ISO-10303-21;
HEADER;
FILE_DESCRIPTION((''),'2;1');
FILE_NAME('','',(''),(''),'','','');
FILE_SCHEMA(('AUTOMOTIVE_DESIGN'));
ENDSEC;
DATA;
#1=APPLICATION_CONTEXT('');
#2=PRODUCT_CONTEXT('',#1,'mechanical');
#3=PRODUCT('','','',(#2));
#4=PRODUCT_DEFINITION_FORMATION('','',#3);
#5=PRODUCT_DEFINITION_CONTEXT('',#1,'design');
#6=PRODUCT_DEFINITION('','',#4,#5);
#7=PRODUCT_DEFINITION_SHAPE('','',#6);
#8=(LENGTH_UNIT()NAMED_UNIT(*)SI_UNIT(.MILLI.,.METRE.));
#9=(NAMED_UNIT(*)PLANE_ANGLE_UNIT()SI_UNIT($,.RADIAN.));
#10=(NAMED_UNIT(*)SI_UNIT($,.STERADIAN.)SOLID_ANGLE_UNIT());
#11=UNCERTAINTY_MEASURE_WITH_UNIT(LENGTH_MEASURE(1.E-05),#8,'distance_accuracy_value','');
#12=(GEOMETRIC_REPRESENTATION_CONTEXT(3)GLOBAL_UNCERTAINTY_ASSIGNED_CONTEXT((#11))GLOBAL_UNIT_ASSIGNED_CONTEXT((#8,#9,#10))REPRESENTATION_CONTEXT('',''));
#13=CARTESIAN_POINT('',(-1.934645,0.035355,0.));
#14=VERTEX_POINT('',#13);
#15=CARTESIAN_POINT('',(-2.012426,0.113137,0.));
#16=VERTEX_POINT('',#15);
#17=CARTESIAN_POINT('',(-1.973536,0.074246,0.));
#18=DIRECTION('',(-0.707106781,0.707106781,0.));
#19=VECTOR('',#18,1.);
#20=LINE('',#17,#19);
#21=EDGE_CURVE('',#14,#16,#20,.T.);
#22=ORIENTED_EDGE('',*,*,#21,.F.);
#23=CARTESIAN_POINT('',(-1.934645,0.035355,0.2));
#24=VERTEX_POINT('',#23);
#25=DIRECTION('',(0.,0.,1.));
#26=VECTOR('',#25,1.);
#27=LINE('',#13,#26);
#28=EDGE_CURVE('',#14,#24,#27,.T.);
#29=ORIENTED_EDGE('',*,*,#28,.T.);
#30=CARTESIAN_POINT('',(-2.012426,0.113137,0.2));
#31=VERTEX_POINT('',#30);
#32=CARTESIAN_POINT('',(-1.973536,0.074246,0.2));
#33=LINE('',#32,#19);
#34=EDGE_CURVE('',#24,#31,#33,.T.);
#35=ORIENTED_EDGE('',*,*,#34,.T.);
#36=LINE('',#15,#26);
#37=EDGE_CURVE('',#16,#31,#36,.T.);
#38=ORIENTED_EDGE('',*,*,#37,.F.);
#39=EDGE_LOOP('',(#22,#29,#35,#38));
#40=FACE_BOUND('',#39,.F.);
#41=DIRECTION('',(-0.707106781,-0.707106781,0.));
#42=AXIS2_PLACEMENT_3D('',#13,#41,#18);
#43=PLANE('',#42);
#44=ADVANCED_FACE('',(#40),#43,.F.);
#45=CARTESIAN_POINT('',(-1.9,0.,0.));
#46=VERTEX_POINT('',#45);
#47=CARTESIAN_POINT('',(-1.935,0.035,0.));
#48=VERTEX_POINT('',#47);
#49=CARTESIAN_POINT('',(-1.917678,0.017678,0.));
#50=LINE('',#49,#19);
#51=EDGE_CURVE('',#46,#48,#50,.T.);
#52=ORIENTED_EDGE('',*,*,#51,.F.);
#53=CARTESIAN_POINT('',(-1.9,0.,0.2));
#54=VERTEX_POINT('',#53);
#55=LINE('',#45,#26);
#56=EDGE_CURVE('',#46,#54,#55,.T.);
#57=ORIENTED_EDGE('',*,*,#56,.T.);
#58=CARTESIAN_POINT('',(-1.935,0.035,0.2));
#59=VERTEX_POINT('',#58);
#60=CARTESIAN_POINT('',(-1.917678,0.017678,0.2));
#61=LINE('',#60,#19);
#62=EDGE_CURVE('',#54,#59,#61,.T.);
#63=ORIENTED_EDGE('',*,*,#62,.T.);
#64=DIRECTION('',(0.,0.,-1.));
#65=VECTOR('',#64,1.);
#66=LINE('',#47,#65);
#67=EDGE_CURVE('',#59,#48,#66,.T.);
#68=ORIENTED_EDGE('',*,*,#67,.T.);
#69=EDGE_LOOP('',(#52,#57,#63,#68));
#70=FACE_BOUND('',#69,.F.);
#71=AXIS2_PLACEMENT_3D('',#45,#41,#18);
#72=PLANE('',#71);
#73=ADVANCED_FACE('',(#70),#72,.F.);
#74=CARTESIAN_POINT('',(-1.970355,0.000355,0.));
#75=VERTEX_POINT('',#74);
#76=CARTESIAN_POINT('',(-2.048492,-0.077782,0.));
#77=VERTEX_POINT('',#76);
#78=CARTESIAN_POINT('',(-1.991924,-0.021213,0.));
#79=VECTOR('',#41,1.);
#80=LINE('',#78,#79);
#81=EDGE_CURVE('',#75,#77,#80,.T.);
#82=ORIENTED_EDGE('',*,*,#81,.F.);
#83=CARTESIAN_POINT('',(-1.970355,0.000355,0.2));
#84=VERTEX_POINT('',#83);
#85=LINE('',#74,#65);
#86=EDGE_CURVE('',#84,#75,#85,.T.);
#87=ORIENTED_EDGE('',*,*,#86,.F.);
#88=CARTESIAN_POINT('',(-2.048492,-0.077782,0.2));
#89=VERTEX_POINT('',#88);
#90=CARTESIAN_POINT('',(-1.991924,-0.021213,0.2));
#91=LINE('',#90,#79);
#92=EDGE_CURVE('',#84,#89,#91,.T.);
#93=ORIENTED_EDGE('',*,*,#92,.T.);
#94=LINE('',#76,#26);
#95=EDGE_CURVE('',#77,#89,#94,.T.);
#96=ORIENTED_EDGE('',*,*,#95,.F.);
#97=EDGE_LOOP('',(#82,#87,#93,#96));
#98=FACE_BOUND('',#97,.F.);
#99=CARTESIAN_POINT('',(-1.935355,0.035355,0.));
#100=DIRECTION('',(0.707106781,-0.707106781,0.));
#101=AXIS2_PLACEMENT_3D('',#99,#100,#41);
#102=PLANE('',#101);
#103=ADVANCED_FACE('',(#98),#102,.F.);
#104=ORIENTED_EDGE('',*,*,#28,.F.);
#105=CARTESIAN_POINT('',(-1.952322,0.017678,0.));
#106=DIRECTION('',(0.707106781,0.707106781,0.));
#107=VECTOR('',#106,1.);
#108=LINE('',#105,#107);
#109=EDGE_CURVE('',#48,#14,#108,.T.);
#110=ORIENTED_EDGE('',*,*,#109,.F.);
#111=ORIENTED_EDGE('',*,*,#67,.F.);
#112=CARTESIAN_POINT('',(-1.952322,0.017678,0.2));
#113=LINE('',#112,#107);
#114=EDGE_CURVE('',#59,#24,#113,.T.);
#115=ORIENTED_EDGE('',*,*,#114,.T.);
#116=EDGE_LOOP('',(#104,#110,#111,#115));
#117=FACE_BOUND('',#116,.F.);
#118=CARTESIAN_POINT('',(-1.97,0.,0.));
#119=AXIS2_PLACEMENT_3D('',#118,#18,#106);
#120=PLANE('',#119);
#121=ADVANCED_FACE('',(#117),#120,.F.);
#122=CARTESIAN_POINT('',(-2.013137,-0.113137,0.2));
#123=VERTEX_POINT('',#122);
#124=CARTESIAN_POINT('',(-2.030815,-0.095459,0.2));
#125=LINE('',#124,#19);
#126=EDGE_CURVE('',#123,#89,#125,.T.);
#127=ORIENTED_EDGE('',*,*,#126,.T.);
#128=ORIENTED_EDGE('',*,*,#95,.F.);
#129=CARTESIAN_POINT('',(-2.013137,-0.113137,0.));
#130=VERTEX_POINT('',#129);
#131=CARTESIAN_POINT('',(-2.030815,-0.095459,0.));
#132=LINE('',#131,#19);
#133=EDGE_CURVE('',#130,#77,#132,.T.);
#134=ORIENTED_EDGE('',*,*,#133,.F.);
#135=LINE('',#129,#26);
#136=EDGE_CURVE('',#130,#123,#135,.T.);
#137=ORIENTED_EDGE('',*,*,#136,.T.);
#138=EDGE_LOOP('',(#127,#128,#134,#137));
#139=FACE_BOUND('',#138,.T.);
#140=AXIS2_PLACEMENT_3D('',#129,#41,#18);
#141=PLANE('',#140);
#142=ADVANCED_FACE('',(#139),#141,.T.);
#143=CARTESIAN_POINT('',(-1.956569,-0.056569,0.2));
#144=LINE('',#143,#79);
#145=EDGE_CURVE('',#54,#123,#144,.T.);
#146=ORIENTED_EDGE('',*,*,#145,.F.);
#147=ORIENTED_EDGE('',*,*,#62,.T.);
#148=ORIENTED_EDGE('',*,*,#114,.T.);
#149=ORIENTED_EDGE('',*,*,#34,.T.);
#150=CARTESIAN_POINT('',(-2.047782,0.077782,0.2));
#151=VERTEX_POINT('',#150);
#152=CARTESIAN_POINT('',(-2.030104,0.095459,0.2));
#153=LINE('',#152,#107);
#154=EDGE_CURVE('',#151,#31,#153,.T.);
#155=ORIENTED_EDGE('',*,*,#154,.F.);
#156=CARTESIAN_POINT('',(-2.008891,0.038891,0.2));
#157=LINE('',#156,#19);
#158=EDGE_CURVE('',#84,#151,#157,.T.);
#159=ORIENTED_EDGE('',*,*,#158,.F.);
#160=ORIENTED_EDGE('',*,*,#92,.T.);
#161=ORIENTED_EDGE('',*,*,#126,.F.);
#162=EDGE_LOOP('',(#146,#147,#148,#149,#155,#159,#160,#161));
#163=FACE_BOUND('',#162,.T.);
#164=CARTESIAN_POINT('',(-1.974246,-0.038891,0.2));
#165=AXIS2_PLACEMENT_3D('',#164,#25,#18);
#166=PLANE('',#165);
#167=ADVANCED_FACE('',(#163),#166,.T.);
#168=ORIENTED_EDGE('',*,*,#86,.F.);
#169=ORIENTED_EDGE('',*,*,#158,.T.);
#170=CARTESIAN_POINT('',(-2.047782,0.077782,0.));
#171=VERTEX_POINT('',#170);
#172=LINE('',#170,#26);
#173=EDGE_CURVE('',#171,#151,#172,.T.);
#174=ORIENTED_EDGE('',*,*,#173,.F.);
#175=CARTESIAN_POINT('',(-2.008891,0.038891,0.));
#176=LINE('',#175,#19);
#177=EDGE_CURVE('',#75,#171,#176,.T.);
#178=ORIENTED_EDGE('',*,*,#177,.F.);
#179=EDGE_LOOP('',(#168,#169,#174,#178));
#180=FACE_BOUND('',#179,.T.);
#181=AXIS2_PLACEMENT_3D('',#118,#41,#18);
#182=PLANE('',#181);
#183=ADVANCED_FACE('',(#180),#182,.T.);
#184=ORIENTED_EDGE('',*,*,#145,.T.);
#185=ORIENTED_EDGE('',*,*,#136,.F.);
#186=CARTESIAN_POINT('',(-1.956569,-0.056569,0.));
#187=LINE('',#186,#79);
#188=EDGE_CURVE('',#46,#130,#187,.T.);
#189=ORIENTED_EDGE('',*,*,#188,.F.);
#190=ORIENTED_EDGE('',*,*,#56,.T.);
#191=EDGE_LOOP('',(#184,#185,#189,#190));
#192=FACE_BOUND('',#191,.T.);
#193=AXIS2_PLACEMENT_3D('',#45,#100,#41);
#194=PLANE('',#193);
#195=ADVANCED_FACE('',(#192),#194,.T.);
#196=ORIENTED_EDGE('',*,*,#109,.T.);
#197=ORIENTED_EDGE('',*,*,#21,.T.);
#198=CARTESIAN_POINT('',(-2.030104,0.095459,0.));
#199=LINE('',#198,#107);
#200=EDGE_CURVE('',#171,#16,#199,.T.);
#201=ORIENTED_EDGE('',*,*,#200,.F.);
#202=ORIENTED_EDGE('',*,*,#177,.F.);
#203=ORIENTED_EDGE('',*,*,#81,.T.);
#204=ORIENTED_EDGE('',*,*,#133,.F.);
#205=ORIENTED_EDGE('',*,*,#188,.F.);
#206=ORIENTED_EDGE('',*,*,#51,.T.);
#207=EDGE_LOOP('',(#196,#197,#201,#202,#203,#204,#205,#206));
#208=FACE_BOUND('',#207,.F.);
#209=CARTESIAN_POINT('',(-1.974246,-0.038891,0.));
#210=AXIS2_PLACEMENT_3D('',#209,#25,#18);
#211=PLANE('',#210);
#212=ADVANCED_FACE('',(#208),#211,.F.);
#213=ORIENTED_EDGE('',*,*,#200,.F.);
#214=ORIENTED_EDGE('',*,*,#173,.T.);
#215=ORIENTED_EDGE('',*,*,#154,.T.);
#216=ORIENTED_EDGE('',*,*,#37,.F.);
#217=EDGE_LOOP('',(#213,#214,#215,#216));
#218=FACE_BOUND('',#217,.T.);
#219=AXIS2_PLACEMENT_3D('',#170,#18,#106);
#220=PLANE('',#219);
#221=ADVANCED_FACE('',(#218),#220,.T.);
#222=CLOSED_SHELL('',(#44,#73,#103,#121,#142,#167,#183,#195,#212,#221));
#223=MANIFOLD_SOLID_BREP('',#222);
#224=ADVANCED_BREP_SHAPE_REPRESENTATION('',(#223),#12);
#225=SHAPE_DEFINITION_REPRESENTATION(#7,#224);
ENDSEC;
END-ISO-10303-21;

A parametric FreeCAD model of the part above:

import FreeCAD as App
import Part
import Sketcher


def add_polygon(sketch, points):
    """Adds a closed chain of lines whose ends are joined by coincident constraints."""
    first, n = sketch.GeometryCount, len(points)
    for a, b in zip(points, points[1:] + points[:1]):
        sketch.addGeometry(Part.LineSegment(App.Vector(*a, 0), App.Vector(*b, 0)), False)
    for i in range(n):
        sketch.addConstraint(Sketcher.Constraint("Coincident", first + i, 2, first + (i + 1) % n, 1))

doc = App.newDocument("Part")
body = doc.addObject("PartDesign::Body", "Body")

sketch1 = body.newObject("Sketcher::SketchObject", "Sketch")
sketch1.AttachmentSupport = (doc.getObject("XY_Plane"), [""])
sketch1.MapMode = "FlatFace"
add_polygon(sketch1, [(0, 0.11), (0, 0), (0.05, 0), (0.05, 0.11)])
sketch1.addConstraint([
    Sketcher.Constraint("Vertical", 0),
    Sketcher.Constraint("Horizontal", 1),
    Sketcher.Constraint("Vertical", 2),
    Sketcher.Constraint("Horizontal", 3),
    Sketcher.Constraint("Coincident", 0, 2, -1, 1),
    Sketcher.Constraint("DistanceX", 1, 1, 1, 2, 0.05),
    Sketcher.Constraint("DistanceY", 0, 2, 0, 1, 0.11),
])
pad1 = body.newObject("PartDesign::Pad", "Pad")
pad1.Profile = sketch1
pad1.Length = 0.2
body2 = doc.addObject("PartDesign::Body", "Body001")
doc.recompute()

body.Placement = App.Placement(App.Vector(0, 1.97, 0), App.Rotation(App.Vector(0, 0, 1), 315))
boolean = body2.newObject("PartDesign::Boolean", "Boolean")
boolean.Type = "Fuse"
boolean.addObjects([body])
body3 = doc.addObject("PartDesign::Body", "Body002")

sketch2 = body3.newObject("Sketcher::SketchObject", "Sketch001")
sketch2.AttachmentSupport = (doc.getObject("XY_Plane002"), [""])
sketch2.MapMode = "FlatFace"
add_polygon(sketch2, [(0, 0.16), (0, 0), (0.05, 0), (0.05, 0.16)])
sketch2.addConstraint([
    Sketcher.Constraint("Vertical", 0),
    Sketcher.Constraint("Horizontal", 1),
    Sketcher.Constraint("Vertical", 2),
    Sketcher.Constraint("Horizontal", 3),
    Sketcher.Constraint("Coincident", 0, 2, -1, 1),
    Sketcher.Constraint("DistanceX", 1, 1, 1, 2, 0.05),
    Sketcher.Constraint("DistanceY", 0, 2, 0, 1, 0.16),
])
pad2 = body3.newObject("PartDesign::Pad", "Pad001")
pad2.Profile = sketch2
pad2.Length = 0.2
body4 = doc.addObject("PartDesign::Body", "Body003")
doc.recompute()

body3.Placement = App.Placement(App.Vector(0, 1.9, 0), App.Rotation(App.Vector(0, 0, 1), 45))
boolean2 = body4.newObject("PartDesign::Boolean", "Boolean001")
boolean2.Type = "Fuse"
boolean2.addObjects([body3])
doc.recompute()

boolean3 = body4.newObject("PartDesign::Boolean", "Boolean002")
boolean3.Type = "Fuse"
boolean3.addObjects([body2])
body5 = doc.addObject("PartDesign::Body", "Body004")
doc.recompute()

body4.Placement = App.Placement(App.Vector(0, 0, 0), App.Rotation(App.Vector(0, 0, 1), 90))
boolean4 = body5.newObject("PartDesign::Boolean", "Boolean003")
boolean4.Type = "Fuse"
boolean4.addObjects([body4])

doc.recompute()
